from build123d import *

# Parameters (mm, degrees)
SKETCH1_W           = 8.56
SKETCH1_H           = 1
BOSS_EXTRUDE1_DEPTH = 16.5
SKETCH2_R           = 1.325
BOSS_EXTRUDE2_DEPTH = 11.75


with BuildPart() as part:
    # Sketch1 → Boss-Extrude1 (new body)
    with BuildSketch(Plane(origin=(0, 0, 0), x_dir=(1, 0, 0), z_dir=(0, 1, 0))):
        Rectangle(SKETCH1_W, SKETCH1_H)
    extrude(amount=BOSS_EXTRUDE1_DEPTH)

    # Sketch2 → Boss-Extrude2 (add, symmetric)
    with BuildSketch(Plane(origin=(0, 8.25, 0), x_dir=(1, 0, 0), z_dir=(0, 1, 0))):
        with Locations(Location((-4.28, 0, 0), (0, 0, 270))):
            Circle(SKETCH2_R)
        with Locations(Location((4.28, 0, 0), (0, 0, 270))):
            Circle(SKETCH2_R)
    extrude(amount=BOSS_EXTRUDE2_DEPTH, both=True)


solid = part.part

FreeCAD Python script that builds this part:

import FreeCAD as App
import Part
import Sketcher

doc = App.newDocument("Part")
body = doc.addObject("PartDesign::Body", "Body")

# Sketch on XZ plane
sketch1 = body.newObject("Sketcher::SketchObject", "Sketch")
sketch1.AttachmentSupport = (doc.getObject("XZ_Plane"), [""])
sketch1.MapMode = "FlatFace"
sketch1.addGeometry([
    Part.LineSegment(App.Vector(-4.3, -0.5, 0), App.Vector(-4.3, 0.5, 0)),
    Part.LineSegment(App.Vector(-4.3, 0.5, 0), App.Vector(4.3, 0.5, 0)),
    Part.LineSegment(App.Vector(4.3, 0.5, 0), App.Vector(4.3, -0.5, 0)),
    Part.LineSegment(App.Vector(4.3, -0.5, 0), App.Vector(-4.3, -0.5, 0)),
], False)
sketch1.addConstraint([
    Sketcher.Constraint("Coincident", 0, 2, 1, 1),
    Sketcher.Constraint("Coincident", 1, 2, 2, 1),
    Sketcher.Constraint("Coincident", 2, 2, 3, 1),
    Sketcher.Constraint("Coincident", 3, 2, 0, 1),
    Sketcher.Constraint("Vertical", 0),
    Sketcher.Constraint("Horizontal", 1),
    Sketcher.Constraint("Vertical", 2),
    Sketcher.Constraint("Horizontal", 3),
    Sketcher.Constraint("Symmetric", 0, 2, 2, 2, -1, 1),
    Sketcher.Constraint("DistanceY", 0, 1, 0, 2, 1.0),
    Sketcher.Constraint("DistanceX", 1, 1, 1, 2, 8.56),
])
pad1 = body.newObject("PartDesign::Pad", "Pad")
pad1.Profile = sketch1
pad1.Length = 16.5
pad1.Reversed = True

# Sketch on XZ plane
sketch2 = body.newObject("Sketcher::SketchObject", "Sketch001")
sketch2.AttachmentSupport = (doc.getObject("XZ_Plane"), [""])
sketch2.MapMode = "FlatFace"
sketch2.AttachmentOffset = App.Placement(App.Vector(0, 0, -8.25), App.Rotation())
sketch2.addGeometry([
    Part.Circle(App.Vector(-4.3, 0, 0), App.Vector(0, 0, 1), 1.3),
    Part.Circle(App.Vector(4.3, 0, 0), App.Vector(0, 0, 1), 1.3),
], False)
sketch2.addConstraint([
    Sketcher.Constraint("Equal", 0, 1),
    Sketcher.Constraint("Symmetric", 0, 3, 1, 3, -1, 1),
    Sketcher.Constraint("PointOnObject", 0, 3, -1),
    Sketcher.Constraint("Diameter", 0, 2.65),
    Sketcher.Constraint("DistanceX", 0, 3, -1, 1, 4.28),
])
pad2 = body.newObject("PartDesign::Pad", "Pad001")
pad2.Profile = sketch2
pad2.Length = 23.5
pad2.Midplane = True

doc.recompute()
